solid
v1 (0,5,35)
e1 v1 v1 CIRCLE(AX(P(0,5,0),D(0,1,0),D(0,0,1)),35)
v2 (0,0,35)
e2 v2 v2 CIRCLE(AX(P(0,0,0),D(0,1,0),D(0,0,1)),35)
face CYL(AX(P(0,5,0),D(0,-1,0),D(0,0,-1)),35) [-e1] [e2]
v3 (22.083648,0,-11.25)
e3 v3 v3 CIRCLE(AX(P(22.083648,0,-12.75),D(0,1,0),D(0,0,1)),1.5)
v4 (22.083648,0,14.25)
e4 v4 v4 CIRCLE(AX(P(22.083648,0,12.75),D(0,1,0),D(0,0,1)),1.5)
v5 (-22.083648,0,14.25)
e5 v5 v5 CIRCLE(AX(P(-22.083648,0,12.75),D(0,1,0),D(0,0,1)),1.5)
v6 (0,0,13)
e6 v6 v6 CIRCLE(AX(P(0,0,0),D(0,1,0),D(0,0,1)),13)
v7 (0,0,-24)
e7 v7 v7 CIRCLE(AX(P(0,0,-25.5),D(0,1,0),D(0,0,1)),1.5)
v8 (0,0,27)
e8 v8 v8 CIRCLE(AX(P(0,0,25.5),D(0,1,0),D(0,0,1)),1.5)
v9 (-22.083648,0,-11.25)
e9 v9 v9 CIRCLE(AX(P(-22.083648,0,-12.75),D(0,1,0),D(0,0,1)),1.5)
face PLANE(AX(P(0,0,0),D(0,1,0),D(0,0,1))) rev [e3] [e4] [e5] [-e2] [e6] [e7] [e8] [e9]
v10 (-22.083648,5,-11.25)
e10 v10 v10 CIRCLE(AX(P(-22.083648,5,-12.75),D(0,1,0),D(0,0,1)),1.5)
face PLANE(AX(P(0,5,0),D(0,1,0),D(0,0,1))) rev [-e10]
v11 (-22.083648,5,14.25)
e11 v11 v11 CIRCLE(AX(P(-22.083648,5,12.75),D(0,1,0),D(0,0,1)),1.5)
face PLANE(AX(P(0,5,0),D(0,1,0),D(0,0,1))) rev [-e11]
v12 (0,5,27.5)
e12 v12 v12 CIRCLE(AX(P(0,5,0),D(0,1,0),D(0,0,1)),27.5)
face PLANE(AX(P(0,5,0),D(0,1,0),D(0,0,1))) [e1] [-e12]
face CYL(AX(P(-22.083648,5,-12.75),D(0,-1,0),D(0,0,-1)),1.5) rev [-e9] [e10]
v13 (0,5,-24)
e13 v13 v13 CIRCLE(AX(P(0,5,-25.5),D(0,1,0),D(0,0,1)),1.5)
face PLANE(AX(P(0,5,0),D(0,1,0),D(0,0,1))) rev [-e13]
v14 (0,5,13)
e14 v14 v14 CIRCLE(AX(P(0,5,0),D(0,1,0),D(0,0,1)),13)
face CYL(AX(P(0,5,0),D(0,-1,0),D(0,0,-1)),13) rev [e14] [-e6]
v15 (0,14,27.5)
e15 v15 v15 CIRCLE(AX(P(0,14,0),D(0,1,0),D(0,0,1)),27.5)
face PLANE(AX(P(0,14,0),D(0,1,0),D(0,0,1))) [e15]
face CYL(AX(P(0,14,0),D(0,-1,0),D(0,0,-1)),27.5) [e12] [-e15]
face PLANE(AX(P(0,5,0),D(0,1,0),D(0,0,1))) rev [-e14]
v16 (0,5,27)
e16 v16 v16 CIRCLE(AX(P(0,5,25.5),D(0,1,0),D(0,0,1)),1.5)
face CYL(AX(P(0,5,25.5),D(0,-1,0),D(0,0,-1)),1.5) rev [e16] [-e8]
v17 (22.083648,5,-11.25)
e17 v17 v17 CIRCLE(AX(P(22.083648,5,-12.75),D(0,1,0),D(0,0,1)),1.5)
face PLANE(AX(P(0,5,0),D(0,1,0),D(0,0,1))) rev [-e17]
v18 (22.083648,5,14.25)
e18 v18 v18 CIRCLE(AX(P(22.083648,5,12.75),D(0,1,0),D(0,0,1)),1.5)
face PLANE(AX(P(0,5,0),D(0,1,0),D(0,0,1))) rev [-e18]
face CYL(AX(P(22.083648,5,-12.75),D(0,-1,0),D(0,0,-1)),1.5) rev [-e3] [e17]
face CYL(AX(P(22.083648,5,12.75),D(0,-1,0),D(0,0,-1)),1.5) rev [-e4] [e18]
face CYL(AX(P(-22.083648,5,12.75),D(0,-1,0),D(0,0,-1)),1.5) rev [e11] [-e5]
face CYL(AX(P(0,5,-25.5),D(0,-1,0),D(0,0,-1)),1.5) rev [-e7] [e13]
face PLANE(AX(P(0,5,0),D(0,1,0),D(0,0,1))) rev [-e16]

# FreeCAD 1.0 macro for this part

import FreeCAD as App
import Part
import Sketcher
from FreeCAD import Vector
Q = App.Units.Quantity

doc = App.newDocument("Part")
body = doc.addObject("PartDesign::Body", "Body")

sketch1 = body.newObject("Sketcher::SketchObject", "Sketch")
sketch1.AttachmentSupport = (doc.getObject("XZ_Plane"), [""])
sketch1.MapMode = "FlatFace"
sketch1.addGeometry([
    Part.Circle(Vector(0, 0, 0), Vector(0, 0, 1), 35),
    Part.Circle(Vector(-22.1, -12.8, 0), Vector(0, 0, 1), 1.5),
    Part.Circle(Vector(0, -25.5, 0), Vector(0, 0, 1), 1.5),
    Part.Circle(Vector(-22.1, 12.8, 0), Vector(0, 0, 1), 1.5),
    Part.Circle(Vector(22.1, -12.8, 0), Vector(0, 0, 1), 1.5),
    Part.Circle(Vector(0, 0, 0), Vector(0, 0, 1), 13),
    Part.Circle(Vector(0, 25.5, 0), Vector(0, 0, 1), 1.5),
    Part.Circle(Vector(22.1, 12.8, 0), Vector(0, 0, 1), 1.5),
], False)
sketch1.addConstraint([
    Sketcher.Constraint("Coincident", 0, 3, -1, 1),
    Sketcher.Constraint("Coincident", 5, 3, -1, 1),
    Sketcher.Constraint("Equal", 1, 2),
    Sketcher.Constraint("Equal", 2, 3),
    Sketcher.Constraint("Equal", 3, 4),
    Sketcher.Constraint("Equal", 4, 6),
    Sketcher.Constraint("Equal", 6, 7),
    Sketcher.Constraint("Symmetric", 3, 3, 4, 3, -1, 1),
    Sketcher.Constraint("Symmetric", 2, 3, 6, 3, -1, 1),
    Sketcher.Constraint("Symmetric", 1, 3, 7, 3, -1, 1),
    Sketcher.Constraint("Symmetric", 1, 3, 4, 3, -2),
    Sketcher.Constraint("PointOnObject", 2, 3, -2),
    Sketcher.Constraint("Diameter", 0, Q("70 mm")),
    Sketcher.Constraint("Diameter", 1, Q("3 mm")),
    Sketcher.Constraint("Diameter", 5, Q("26 mm")),
    Sketcher.Constraint("DistanceY", 2, 3, -1, 1, Q("25.5 mm")),
    Sketcher.Constraint("DistanceY", 1, 3, 3, 3, Q("25.5 mm")),
    Sketcher.Constraint("DistanceX", 1, 3, -1, 1, Q("22.083648 mm")),
])
pad1 = body.newObject("PartDesign::Pad", "Pad")
pad1.Profile = sketch1
pad1.Length = 5
pad1.Reversed = True

sketch2 = body.newObject("Sketcher::SketchObject", "Sketch001")
sketch2.AttachmentSupport = (doc.getObject("XZ_Plane"), [""])
sketch2.MapMode = "FlatFace"
sketch2.AttachmentOffset = App.Placement(Vector(0, 0, -5), App.Rotation())
sketch2.addGeometry(Part.Circle(Vector(0, 0, 0), Vector(0, 0, 1), 28), False)
sketch2.addConstraint([
    Sketcher.Constraint("Coincident", 0, 3, -1, 1),
    Sketcher.Constraint("Diameter", 0, Q("55 mm")),
])
pad2 = body.newObject("PartDesign::Pad", "Pad001")
pad2.Profile = sketch2
pad2.Length = 9
pad2.Reversed = True

doc.recompute()
